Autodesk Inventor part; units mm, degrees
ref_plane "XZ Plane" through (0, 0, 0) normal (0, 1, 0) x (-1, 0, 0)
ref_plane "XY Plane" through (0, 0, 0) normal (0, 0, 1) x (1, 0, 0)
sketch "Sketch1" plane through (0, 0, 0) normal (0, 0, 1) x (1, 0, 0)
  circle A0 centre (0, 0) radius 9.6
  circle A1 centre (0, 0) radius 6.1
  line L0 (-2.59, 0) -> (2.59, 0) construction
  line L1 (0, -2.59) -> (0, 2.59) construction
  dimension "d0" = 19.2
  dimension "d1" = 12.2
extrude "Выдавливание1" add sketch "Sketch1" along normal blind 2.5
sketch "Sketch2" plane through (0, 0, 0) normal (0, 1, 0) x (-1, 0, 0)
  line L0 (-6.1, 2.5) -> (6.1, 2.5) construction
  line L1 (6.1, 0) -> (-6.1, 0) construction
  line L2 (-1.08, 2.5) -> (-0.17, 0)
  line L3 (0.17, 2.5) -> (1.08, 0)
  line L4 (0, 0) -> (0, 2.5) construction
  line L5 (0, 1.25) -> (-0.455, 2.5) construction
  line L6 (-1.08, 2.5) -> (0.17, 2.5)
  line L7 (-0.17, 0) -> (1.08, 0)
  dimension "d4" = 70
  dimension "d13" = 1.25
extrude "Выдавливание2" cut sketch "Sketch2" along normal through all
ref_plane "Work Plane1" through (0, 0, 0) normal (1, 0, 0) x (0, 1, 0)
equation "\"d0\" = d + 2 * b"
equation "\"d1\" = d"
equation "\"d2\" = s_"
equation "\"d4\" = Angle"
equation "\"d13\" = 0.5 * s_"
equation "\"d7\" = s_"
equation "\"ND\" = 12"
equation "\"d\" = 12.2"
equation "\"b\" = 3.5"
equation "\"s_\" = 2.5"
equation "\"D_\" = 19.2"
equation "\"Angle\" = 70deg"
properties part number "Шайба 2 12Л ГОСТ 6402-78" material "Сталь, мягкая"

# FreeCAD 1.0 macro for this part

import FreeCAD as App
import Part
import Sketcher

V = App.Vector
Q = App.Units.Quantity


def add_polygon(sketch, points):
    """Adds a closed chain of lines whose ends are joined by coincident constraints."""
    first, n = sketch.GeometryCount, len(points)
    for a, b in zip(points, points[1:] + points[:1]):
        sketch.addGeometry(Part.LineSegment(App.Vector(*a, 0), App.Vector(*b, 0)), False)
    for i in range(n):
        sketch.addConstraint(Sketcher.Constraint("Coincident", first + i, 2, first + (i + 1) % n, 1))

doc = App.newDocument("Part")
params = doc.addObject("Spreadsheet::Sheet", "Params")
for row, (alias, value) in enumerate([
    ("sketch1_diameter", "19.2 mm"),
    ("sketch1_diameter2", "12.2 mm"),
    ("pad1_length", "2.5 mm"),
    ("sketch2_width", "1.25 mm"),
], start=1):
    params.set(f"A{row}", alias)
    params.set(f"B{row}", "=" + value)
    params.setAlias(f"B{row}", alias)

body = doc.addObject("PartDesign::Body", "Body")

# Sketch on XY plane
sketch1 = doc.addObject("Sketcher::SketchObject", "Sketch")
body.addObject(sketch1)
sketch1.AttachmentSupport = (doc.XY_Plane, [""])
sketch1.MapMode = "FlatFace"
sketch1.addGeometry(Part.Circle(V(0, 0, 0), V(0, 0, 1), 10), False)
sketch1.addGeometry(Part.Circle(V(0, 0, 0), V(0, 0, 1), 6), False)
sketch1.addConstraint(Sketcher.Constraint("Coincident", 0, 3, -1, 1))
sketch1.addConstraint(Sketcher.Constraint("Coincident", 1, 3, -1, 1))
sketch1.addConstraint(Sketcher.Constraint("Diameter", 0, Q("19.2 mm")))
sketch1.addConstraint(Sketcher.Constraint("Diameter", 1, Q("12.2 mm")))
sketch1.setExpression("Constraints[2]", "Params.sketch1_diameter")
sketch1.setExpression("Constraints[3]", "Params.sketch1_diameter2")
pad1 = doc.addObject("PartDesign::Pad", "Pad")
body.addObject(pad1)
pad1.Profile = sketch1
pad1.setExpression("Length", "Params.pad1_length")

# Sketch on XZ plane
sketch2 = doc.addObject("Sketcher::SketchObject", "Sketch001")
body.addObject(sketch2)
sketch2.AttachmentSupport = (doc.XZ_Plane, [""])
sketch2.MapMode = "FlatFace"
add_polygon(sketch2, [(-0.2, 2.5), (1.1, 2.5), (0.2, 0), (-1.1, 0)])  # lines 0-3
sketch2.addConstraint(Sketcher.Constraint("Horizontal", 0))
sketch2.addConstraint(Sketcher.Constraint("Horizontal", 2))
sketch2.addConstraint(Sketcher.Constraint("PointOnObject", 1, 2, -1))
sketch2.addConstraint(Sketcher.Constraint("Parallel", 1, 3))
sketch2.addConstraint(Sketcher.Constraint("DistanceX", 0, 1, 0, 2, Q("1.25 mm")))
sketch2.addConstraint(Sketcher.Constraint("DistanceY", -1, 1, 0, 2, Q("2.5 mm")))
sketch2.addConstraint(Sketcher.Constraint("DistanceX", -1, 1, 0, 2, Q("1.08 mm")))
sketch2.addConstraint(Sketcher.Constraint("DistanceX", -1, 1, 1, 2, Q("0.17 mm")))
sketch2.setExpression("Constraints[8]", "Params.sketch2_width")
pocket1 = doc.addObject("PartDesign::Pocket", "Pocket")
body.addObject(pocket1)
pocket1.Profile = sketch2
pocket1.Type = "ThroughAll"

doc.recompute()
